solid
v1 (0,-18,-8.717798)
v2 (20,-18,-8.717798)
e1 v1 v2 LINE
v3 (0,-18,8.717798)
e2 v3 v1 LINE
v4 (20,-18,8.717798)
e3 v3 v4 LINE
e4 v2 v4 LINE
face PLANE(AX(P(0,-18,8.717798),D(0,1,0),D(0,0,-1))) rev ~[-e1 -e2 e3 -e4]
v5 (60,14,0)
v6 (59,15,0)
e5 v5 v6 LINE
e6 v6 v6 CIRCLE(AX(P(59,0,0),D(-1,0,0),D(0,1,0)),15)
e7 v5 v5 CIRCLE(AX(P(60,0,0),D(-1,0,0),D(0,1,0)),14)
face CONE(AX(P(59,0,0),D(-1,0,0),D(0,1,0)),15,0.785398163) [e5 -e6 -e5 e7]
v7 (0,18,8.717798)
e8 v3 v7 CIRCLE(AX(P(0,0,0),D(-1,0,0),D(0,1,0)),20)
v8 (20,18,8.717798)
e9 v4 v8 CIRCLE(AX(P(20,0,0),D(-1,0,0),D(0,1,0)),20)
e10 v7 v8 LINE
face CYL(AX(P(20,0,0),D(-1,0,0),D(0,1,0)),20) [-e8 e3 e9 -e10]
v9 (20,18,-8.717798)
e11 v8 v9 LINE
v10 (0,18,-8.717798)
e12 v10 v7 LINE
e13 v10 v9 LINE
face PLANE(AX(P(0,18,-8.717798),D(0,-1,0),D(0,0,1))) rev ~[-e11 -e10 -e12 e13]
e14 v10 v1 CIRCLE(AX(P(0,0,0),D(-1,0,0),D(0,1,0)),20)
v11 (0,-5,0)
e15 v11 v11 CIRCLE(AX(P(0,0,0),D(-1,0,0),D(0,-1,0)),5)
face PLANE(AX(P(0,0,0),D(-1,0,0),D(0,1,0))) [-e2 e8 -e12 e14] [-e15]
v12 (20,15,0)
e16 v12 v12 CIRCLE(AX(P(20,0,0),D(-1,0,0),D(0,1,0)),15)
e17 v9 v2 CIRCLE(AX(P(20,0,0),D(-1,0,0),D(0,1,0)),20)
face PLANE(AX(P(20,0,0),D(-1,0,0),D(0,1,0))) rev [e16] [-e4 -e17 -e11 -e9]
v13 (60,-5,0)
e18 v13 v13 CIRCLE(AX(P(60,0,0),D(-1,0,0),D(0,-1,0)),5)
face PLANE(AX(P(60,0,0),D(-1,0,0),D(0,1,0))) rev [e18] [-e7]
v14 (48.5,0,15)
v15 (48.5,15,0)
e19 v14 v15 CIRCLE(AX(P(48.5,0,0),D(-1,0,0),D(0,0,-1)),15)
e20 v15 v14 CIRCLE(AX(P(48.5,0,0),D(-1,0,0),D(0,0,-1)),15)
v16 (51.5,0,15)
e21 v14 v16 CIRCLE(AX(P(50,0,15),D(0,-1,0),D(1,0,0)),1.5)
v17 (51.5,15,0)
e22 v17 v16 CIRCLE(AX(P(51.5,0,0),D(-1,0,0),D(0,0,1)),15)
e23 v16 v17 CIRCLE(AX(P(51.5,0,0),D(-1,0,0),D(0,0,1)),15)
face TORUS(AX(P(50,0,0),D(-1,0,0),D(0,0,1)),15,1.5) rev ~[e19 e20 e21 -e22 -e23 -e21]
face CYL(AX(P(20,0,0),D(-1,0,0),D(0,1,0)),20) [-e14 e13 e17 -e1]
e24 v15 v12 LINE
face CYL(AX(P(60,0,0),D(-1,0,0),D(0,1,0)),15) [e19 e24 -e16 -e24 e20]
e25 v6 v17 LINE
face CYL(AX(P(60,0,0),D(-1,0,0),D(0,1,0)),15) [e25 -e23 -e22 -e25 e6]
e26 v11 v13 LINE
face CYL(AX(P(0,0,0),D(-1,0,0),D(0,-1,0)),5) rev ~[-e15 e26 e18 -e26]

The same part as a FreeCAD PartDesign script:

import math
import FreeCAD as App
import Part
import Sketcher

V = App.Vector


def edges_at(feature, points):
    """Names of the edges that pass closest to the given points."""
    edges = feature.Shape.Edges
    near = lambda p: min(range(len(edges)), key=lambda i: edges[i].distToShape(Part.Vertex(*p))[0])
    return sorted({f"Edge{near(p) + 1}" for p in points})


def add_polygon(sketch, points):
    """Adds a closed chain of lines whose ends are joined by coincident constraints."""
    first, n = sketch.GeometryCount, len(points)
    for a, b in zip(points, points[1:] + points[:1]):
        sketch.addGeometry(Part.LineSegment(App.Vector(*a, 0), App.Vector(*b, 0)), False)
    for i in range(n):
        sketch.addConstraint(Sketcher.Constraint("Coincident", first + i, 2, first + (i + 1) % n, 1))

doc = App.newDocument("Part")
body = doc.addObject("PartDesign::Body", "Body")

# Sketch on XY plane
sketch1 = doc.addObject("Sketcher::SketchObject", "Sketch")
body.addObject(sketch1)
sketch1.AttachmentSupport = (doc.XY_Plane, [""])
sketch1.MapMode = "FlatFace"
add_polygon(sketch1, [(0, 20), (0, 0), (60, 0), (60, 15), (20, 15), (20, 20)])  # lines 0-5
sketch1.addConstraint(Sketcher.Constraint("Vertical", 0))
sketch1.addConstraint(Sketcher.Constraint("Horizontal", 1))
sketch1.addConstraint(Sketcher.Constraint("Vertical", 2))
sketch1.addConstraint(Sketcher.Constraint("Horizontal", 3))
sketch1.addConstraint(Sketcher.Constraint("Vertical", 4))
sketch1.addConstraint(Sketcher.Constraint("Horizontal", 5))
sketch1.addConstraint(Sketcher.Constraint("Coincident", 0, 2, -1, 1))
sketch1.addConstraint(Sketcher.Constraint("Equal", 5, 0))
sketch1.addConstraint(Sketcher.Constraint("DistanceX", 1, 1, 1, 2, 60.0))
sketch1.addConstraint(Sketcher.Constraint("DistanceX", 3, 2, 3, 1, 40.0))
sketch1.addConstraint(Sketcher.Constraint("DistanceY", 2, 1, 2, 2, 15.0))
revolution = doc.addObject("PartDesign::Revolution", "Revolution")
body.addObject(revolution)
revolution.Profile = sketch1
revolution.ReferenceAxis = (sketch1, ["H_Axis"])
revolution.Angle = 360
doc.recompute()

chamfer = doc.addObject("PartDesign::Chamfer", "Chamfer")
body.addObject(chamfer)
chamfer.Base = (revolution, edges_at(revolution, [(60, -15, 0)]))
chamfer.Size = 1

# Sketch on YZ plane
sketch2 = doc.addObject("Sketcher::SketchObject", "Sketch001")
body.addObject(sketch2)
sketch2.AttachmentSupport = (doc.YZ_Plane, [""])
sketch2.MapMode = "FlatFace"
sketch2.addGeometry(Part.LineSegment(V(18, -9, 0), V(18, 9, 0)), False)
sketch2.addGeometry(Part.ArcOfCircle(Part.Circle(V(0, 0, 0), V(0, 0, 1), 20), math.radians(-26), math.radians(26)), False)
sketch2.addGeometry(Part.ArcOfCircle(Part.Circle(V(0, 0, 0), V(0, 0, 1), 20), math.radians(154), math.radians(180)), False)
sketch2.addGeometry(Part.LineSegment(V(-18, 9, 0), V(-18, -9, 0)), False)
sketch2.addGeometry(Part.ArcOfCircle(Part.Circle(V(0, 0, 0), V(0, 0, 1), 20), math.radians(180), math.radians(206)), False)
sketch2.addConstraint(Sketcher.Constraint("Coincident", 0, 1, 1, 1))
sketch2.addConstraint(Sketcher.Constraint("Coincident", 1, 2, 0, 2))
sketch2.addConstraint(Sketcher.Constraint("Coincident", 2, 1, 3, 1))
sketch2.addConstraint(Sketcher.Constraint("Coincident", 3, 2, 4, 2))
sketch2.addConstraint(Sketcher.Constraint("Tangent", 4, 1, 2, 2))
sketch2.addConstraint(Sketcher.Constraint("Vertical", 0))
sketch2.addConstraint(Sketcher.Constraint("Vertical", 3))
sketch2.addConstraint(Sketcher.Constraint("Coincident", 1, 3, -1, 1))
sketch2.addConstraint(Sketcher.Constraint("Coincident", 2, 3, -1, 1))
sketch2.addConstraint(Sketcher.Constraint("Equal", 1, 2))
sketch2.addConstraint(Sketcher.Constraint("Equal", 2, 4))
sketch2.addConstraint(Sketcher.Constraint("PointOnObject", 4, 1, -1))
sketch2.addConstraint(Sketcher.Constraint("Horizontal", 1, 2, 2, 1))
sketch2.addConstraint(Sketcher.Constraint("Radius", 1, 20.0))
sketch2.addConstraint(Sketcher.Constraint("DistanceX", -1, 1, 0, 1, 18.0))
pocket1 = doc.addObject("PartDesign::Pocket", "Pocket")
body.addObject(pocket1)
pocket1.Profile = sketch2
pocket1.Type = "ThroughAll"
pocket1.Reversed = True

# Sketch on YZ plane
sketch3 = doc.addObject("Sketcher::SketchObject", "Sketch002")
body.addObject(sketch3)
sketch3.AttachmentSupport = (doc.YZ_Plane, [""])
sketch3.MapMode = "FlatFace"
sketch3.addGeometry(Part.Circle(V(0, 0, 0), V(0, 0, 1), 5), False)
sketch3.addConstraint(Sketcher.Constraint("Coincident", 0, 3, -1, 1))
sketch3.addConstraint(Sketcher.Constraint("Diameter", 0, 10.0))
pocket2 = doc.addObject("PartDesign::Pocket", "Pocket001")
body.addObject(pocket2)
pocket2.Profile = sketch3
pocket2.Type = "ThroughAll"
pocket2.Reversed = True

# Sketch on XZ plane
sketch4 = doc.addObject("Sketcher::SketchObject", "Sketch003")
body.addObject(sketch4)
sketch4.AttachmentSupport = (doc.XZ_Plane, [""])
sketch4.MapMode = "FlatFace"
sketch4.addGeometry(Part.Circle(V(50, 15, 0), V(0, 0, 1), 1.5), False)
sketch4.addConstraint(Sketcher.Constraint("Diameter", 0, 3.0))
sketch4.addConstraint(Sketcher.Constraint("DistanceX", -1, 1, 0, 3, 50.0))
sketch4.addConstraint(Sketcher.Constraint("DistanceY", -1, 1, 0, 3, 15.0))
groove = doc.addObject("PartDesign::Groove", "Groove")
body.addObject(groove)
groove.Profile = sketch4
groove.ReferenceAxis = (sketch4, ["H_Axis"])
groove.Angle = 360

doc.recompute()
